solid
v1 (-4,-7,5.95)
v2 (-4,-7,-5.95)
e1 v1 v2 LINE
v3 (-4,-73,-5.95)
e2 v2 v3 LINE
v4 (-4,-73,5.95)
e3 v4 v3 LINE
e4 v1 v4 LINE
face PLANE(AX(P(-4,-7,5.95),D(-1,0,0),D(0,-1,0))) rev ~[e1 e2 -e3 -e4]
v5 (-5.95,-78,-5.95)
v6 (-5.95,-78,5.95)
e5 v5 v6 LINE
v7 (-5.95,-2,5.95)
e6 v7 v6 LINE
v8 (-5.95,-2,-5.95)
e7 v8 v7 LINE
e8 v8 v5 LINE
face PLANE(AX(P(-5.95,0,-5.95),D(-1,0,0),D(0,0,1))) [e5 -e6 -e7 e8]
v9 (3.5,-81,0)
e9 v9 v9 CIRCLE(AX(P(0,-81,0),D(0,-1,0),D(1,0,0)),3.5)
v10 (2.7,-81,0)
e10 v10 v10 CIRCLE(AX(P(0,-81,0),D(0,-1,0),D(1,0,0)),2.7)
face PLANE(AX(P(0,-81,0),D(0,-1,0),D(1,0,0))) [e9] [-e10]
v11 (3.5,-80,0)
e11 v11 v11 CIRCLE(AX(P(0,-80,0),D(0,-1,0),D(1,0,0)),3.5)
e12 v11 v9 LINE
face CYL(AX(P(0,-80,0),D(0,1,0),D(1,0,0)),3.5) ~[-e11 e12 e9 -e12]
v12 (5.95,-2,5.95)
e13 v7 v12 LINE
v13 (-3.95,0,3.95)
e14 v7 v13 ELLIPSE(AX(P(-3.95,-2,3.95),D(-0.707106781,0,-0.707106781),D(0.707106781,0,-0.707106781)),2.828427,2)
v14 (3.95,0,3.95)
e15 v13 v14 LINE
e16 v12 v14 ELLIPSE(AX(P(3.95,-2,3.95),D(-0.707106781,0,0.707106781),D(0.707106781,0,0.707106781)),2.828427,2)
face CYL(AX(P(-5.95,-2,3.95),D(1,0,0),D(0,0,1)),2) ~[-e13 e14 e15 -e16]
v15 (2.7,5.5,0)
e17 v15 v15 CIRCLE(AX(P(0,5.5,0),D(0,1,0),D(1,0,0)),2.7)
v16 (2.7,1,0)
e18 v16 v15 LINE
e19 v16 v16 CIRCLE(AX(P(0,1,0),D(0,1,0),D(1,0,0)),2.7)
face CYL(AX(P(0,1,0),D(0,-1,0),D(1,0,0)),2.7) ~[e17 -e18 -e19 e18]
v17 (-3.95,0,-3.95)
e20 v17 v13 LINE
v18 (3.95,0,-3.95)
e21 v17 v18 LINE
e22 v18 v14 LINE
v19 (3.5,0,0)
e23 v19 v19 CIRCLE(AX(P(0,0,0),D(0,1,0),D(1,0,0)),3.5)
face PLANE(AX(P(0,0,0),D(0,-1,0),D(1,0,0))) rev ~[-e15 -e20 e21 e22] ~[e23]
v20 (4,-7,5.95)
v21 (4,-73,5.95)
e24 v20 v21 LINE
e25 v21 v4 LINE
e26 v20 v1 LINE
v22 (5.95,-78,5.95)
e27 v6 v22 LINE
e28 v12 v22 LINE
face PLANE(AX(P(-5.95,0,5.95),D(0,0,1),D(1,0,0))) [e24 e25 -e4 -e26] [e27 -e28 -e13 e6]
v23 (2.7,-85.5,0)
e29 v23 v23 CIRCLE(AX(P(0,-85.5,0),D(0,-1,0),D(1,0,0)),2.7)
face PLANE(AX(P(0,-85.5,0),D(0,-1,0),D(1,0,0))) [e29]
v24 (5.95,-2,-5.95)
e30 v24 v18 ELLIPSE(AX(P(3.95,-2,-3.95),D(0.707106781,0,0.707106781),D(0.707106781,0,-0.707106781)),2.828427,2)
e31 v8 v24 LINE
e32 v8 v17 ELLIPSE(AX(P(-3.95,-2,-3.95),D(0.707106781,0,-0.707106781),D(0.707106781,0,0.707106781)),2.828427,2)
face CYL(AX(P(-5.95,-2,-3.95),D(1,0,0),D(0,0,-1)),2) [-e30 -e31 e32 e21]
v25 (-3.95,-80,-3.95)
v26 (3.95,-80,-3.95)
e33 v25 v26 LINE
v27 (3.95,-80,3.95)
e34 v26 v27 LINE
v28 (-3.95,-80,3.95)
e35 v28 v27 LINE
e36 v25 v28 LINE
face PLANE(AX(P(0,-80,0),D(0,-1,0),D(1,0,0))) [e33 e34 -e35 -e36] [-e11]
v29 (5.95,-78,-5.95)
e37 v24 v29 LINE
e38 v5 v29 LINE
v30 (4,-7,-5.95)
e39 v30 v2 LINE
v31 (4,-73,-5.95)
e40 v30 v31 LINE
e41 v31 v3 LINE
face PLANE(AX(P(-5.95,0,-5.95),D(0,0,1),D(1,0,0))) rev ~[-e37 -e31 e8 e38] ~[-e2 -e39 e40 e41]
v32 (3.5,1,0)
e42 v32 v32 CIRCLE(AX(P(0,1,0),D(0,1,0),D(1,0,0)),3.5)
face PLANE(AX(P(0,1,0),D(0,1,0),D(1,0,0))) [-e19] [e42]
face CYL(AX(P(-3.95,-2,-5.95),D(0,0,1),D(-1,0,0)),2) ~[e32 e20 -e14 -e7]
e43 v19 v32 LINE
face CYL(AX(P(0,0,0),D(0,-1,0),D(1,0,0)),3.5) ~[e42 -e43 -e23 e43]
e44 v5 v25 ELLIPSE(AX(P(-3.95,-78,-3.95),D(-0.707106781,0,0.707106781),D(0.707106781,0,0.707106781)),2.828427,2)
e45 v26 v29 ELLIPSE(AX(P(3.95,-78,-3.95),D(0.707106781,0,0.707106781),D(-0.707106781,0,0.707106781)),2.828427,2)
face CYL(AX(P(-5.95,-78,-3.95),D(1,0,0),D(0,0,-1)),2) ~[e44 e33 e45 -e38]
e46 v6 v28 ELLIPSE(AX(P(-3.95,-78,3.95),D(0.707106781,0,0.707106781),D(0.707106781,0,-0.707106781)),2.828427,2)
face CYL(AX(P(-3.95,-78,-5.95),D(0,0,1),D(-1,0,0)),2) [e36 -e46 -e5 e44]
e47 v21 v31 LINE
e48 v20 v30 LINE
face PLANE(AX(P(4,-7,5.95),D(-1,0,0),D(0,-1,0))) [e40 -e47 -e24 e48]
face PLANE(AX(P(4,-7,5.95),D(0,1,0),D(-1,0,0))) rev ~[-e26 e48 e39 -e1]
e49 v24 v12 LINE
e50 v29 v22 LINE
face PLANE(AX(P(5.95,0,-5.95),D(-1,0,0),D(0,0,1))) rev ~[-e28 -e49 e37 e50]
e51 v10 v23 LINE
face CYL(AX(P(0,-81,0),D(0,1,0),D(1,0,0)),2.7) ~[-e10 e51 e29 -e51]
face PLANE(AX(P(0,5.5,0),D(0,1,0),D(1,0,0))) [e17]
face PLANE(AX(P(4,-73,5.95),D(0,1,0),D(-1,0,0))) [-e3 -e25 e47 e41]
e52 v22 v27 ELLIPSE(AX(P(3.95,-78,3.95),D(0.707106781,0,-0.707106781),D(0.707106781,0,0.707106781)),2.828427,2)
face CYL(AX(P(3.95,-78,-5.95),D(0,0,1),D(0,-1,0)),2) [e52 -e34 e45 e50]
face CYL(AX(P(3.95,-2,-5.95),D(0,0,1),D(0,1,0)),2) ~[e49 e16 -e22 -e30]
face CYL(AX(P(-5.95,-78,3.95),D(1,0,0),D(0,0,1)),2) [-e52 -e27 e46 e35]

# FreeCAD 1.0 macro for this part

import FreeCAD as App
import Part
import Sketcher

V = App.Vector


def edges_at(feature, points):
    """Names of the edges that pass closest to the given points."""
    edges = feature.Shape.Edges
    near = lambda p: min(range(len(edges)), key=lambda i: edges[i].distToShape(Part.Vertex(*p))[0])
    return sorted({f"Edge{near(p) + 1}" for p in points})


def add_polygon(sketch, points):
    """Adds a closed chain of lines whose ends are joined by coincident constraints."""
    first, n = sketch.GeometryCount, len(points)
    for a, b in zip(points, points[1:] + points[:1]):
        sketch.addGeometry(Part.LineSegment(App.Vector(*a, 0), App.Vector(*b, 0)), False)
    for i in range(n):
        sketch.addConstraint(Sketcher.Constraint("Coincident", first + i, 2, first + (i + 1) % n, 1))

doc = App.newDocument("Part")
body = doc.addObject("PartDesign::Body", "Body")

# Sketch on XZ plane
sketch1 = body.newObject("Sketcher::SketchObject", "Sketch")
sketch1.AttachmentSupport = (doc.getObject("XZ_Plane"), [""])
sketch1.MapMode = "FlatFace"
add_polygon(sketch1, [(-6, 6), (-6, -6), (6, -6), (6, 6)])  # lines 0-3
sketch1.addConstraint([
    Sketcher.Constraint("Vertical", 0),
    Sketcher.Constraint("Horizontal", 1),
    Sketcher.Constraint("Vertical", 2),
    Sketcher.Constraint("Horizontal", 3),
    Sketcher.Constraint("Symmetric", 0, 2, 2, 2, -1, 1),
    Sketcher.Constraint("Equal", 3, 0),
    Sketcher.Constraint("DistanceX", 1, 1, 1, 2, 11.9),
])
pad1 = body.newObject("PartDesign::Pad", "Pad")
pad1.Profile = sketch1
pad1.Length = 80

# Sketch on XZ plane
sketch2 = body.newObject("Sketcher::SketchObject", "Sketch001")
sketch2.AttachmentSupport = (doc.getObject("XZ_Plane"), [""])
sketch2.MapMode = "FlatFace"
sketch2.addGeometry(Part.Circle(V(0, 0, 0), V(0, 0, 1), 3.5), False)
sketch2.addConstraint([
    Sketcher.Constraint("Coincident", 0, 3, -1, 1),
    Sketcher.Constraint("Diameter", 0, 7.0),
])
pad2 = body.newObject("PartDesign::Pad", "Pad001")
pad2.Profile = sketch2
pad2.Length = 1
pad2.Reversed = True

# Sketch on XZ plane
sketch3 = body.newObject("Sketcher::SketchObject", "Sketch002")
sketch3.AttachmentSupport = (doc.getObject("XZ_Plane"), [""])
sketch3.MapMode = "FlatFace"
sketch3.AttachmentOffset = App.Placement(V(0, 0, 80), App.Rotation())
sketch3.addGeometry(Part.Circle(V(0, 0, 0), V(0, 0, 1), 3.5), False)
sketch3.addConstraint([
    Sketcher.Constraint("Coincident", 0, 3, -1, 1),
    Sketcher.Constraint("Diameter", 0, 7.0),
])
pad3 = body.newObject("PartDesign::Pad", "Pad002")
pad3.Profile = sketch3
pad3.Length = 1

# Sketch on XZ plane
sketch4 = body.newObject("Sketcher::SketchObject", "Sketch003")
sketch4.AttachmentSupport = (doc.getObject("XZ_Plane"), [""])
sketch4.MapMode = "FlatFace"
sketch4.AttachmentOffset = App.Placement(V(0, 0, 81), App.Rotation())
sketch4.addGeometry(Part.Circle(V(0, 0, 0), V(0, 0, 1), 2.7), False)
sketch4.addConstraint([
    Sketcher.Constraint("Coincident", 0, 3, -1, 1),
    Sketcher.Constraint("Diameter", 0, 5.4),
])
pad4 = body.newObject("PartDesign::Pad", "Pad003")
pad4.Profile = sketch4
pad4.Length = 4.5

# Sketch on XZ plane
sketch5 = body.newObject("Sketcher::SketchObject", "Sketch004")
sketch5.AttachmentSupport = (doc.getObject("XZ_Plane"), [""])
sketch5.MapMode = "FlatFace"
sketch5.AttachmentOffset = App.Placement(V(0, 0, -1), App.Rotation())
sketch5.addGeometry(Part.Circle(V(0, 0, 0), V(0, 0, 1), 2.7), False)
sketch5.addConstraint([
    Sketcher.Constraint("Coincident", 0, 3, -1, 1),
    Sketcher.Constraint("Diameter", 0, 5.4),
])
pad5 = body.newObject("PartDesign::Pad", "Pad004")
pad5.Profile = sketch5
pad5.Length = 4.5
pad5.Reversed = True
doc.recompute()

fillet = body.newObject("PartDesign::Fillet", "Fillet")
fillet.Base = (pad5, edges_at(pad5, [
    (0, 0, 5.95),
    (-5.95, 0, 0),
    (0, 0, -5.95),
    (5.95, 0, 0),
    (0, -80, 5.95),
    (-5.95, -80, 0),
    (5.95, -80, 0),
    (0, -80, -5.95),
]))
fillet.Radius = 2

# Sketch on XY plane
sketch6 = body.newObject("Sketcher::SketchObject", "Sketch005")
sketch6.AttachmentSupport = (doc.getObject("XY_Plane"), [""])
sketch6.MapMode = "FlatFace"
sketch6.AttachmentOffset = App.Placement(V(0, 0, 5.95), App.Rotation())
add_polygon(sketch6, [(4, -73), (4, -7), (-4, -7), (-4, -73)])  # lines 0-3
sketch6.addConstraint([
    Sketcher.Constraint("Vertical", 0),
    Sketcher.Constraint("Horizontal", 1),
    Sketcher.Constraint("Vertical", 2),
    Sketcher.Constraint("Horizontal", 3),
    Sketcher.Constraint("DistanceX", 1, 2, 1, 1, 8.0),
    Sketcher.Constraint("DistanceY", 0, 1, 0, 2, 66.0),
    Sketcher.Constraint("DistanceX", -1, 1, 0, 2, 4.0),
    Sketcher.Constraint("DistanceY", 0, 2, -1, 1, 7.0),
])
pocket1 = body.newObject("PartDesign::Pocket", "Pocket")
pocket1.Profile = sketch6
pocket1.Type = "ThroughAll"

doc.recompute()
